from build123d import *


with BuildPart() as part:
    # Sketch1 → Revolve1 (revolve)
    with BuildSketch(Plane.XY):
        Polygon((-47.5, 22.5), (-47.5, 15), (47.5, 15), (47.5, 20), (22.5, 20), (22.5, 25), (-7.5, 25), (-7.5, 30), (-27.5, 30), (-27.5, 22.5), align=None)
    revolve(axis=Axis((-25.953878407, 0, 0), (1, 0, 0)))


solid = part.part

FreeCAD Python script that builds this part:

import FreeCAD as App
import Part
import Sketcher
from FreeCAD import Vector

doc = App.newDocument("Part")
body = doc.addObject("PartDesign::Body", "Body")

# Sketch on XY plane
sketch1 = body.newObject("Sketcher::SketchObject", "Sketch")
sketch1.AttachmentSupport = (doc.getObject("XY_Plane"), [""])
sketch1.MapMode = "FlatFace"
sketch1.addGeometry(Part.LineSegment(Vector(-48, 22, 0), Vector(-48, 15, 0)), False)
sketch1.addGeometry(Part.LineSegment(Vector(-48, 15, 0), Vector(48, 15, 0)), False)
sketch1.addGeometry(Part.LineSegment(Vector(48, 15, 0), Vector(48, 20, 0)), False)
sketch1.addGeometry(Part.LineSegment(Vector(48, 20, 0), Vector(22, 20, 0)), False)
sketch1.addGeometry(Part.LineSegment(Vector(22, 20, 0), Vector(22, 25, 0)), False)
sketch1.addGeometry(Part.LineSegment(Vector(22, 25, 0), Vector(-8, 25, 0)), False)
sketch1.addGeometry(Part.LineSegment(Vector(-8, 25, 0), Vector(-8, 30, 0)), False)
sketch1.addGeometry(Part.LineSegment(Vector(-8, 30, 0), Vector(-28, 30, 0)), False)
sketch1.addGeometry(Part.LineSegment(Vector(-28, 30, 0), Vector(-28, 22, 0)), False)
sketch1.addGeometry(Part.LineSegment(Vector(-28, 22, 0), Vector(-48, 22, 0)), False)
sketch1.addConstraint(Sketcher.Constraint("Coincident", 0, 2, 1, 1))
sketch1.addConstraint(Sketcher.Constraint("Coincident", 1, 2, 2, 1))
sketch1.addConstraint(Sketcher.Constraint("Coincident", 2, 2, 3, 1))
sketch1.addConstraint(Sketcher.Constraint("Coincident", 3, 2, 4, 1))
sketch1.addConstraint(Sketcher.Constraint("Coincident", 4, 2, 5, 1))
sketch1.addConstraint(Sketcher.Constraint("Coincident", 5, 2, 6, 1))
sketch1.addConstraint(Sketcher.Constraint("Coincident", 6, 2, 7, 1))
sketch1.addConstraint(Sketcher.Constraint("Coincident", 7, 2, 8, 1))
sketch1.addConstraint(Sketcher.Constraint("Coincident", 8, 2, 9, 1))
sketch1.addConstraint(Sketcher.Constraint("Coincident", 9, 2, 0, 1))
sketch1.addConstraint(Sketcher.Constraint("Vertical", 0))
sketch1.addConstraint(Sketcher.Constraint("Horizontal", 1))
sketch1.addConstraint(Sketcher.Constraint("Vertical", 2))
sketch1.addConstraint(Sketcher.Constraint("Horizontal", 3))
sketch1.addConstraint(Sketcher.Constraint("Vertical", 4))
sketch1.addConstraint(Sketcher.Constraint("Horizontal", 5))
sketch1.addConstraint(Sketcher.Constraint("Vertical", 6))
sketch1.addConstraint(Sketcher.Constraint("Horizontal", 7))
sketch1.addConstraint(Sketcher.Constraint("Vertical", 8))
sketch1.addConstraint(Sketcher.Constraint("Horizontal", 9))
sketch1.addConstraint(Sketcher.Constraint("Equal", 7, 9))
sketch1.addConstraint(Sketcher.Constraint("Equal", 2, 4))
sketch1.addConstraint(Sketcher.Constraint("Equal", 4, 6))
sketch1.addConstraint(Sketcher.Constraint("Equal", 0, 8))
sketch1.addConstraint(Sketcher.Constraint("DistanceX", 1, 1, 1, 2, 95.0))
sketch1.addConstraint(Sketcher.Constraint("DistanceX", 3, 2, 3, 1, 25.0))
sketch1.addConstraint(Sketcher.Constraint("DistanceX", 5, 2, 5, 1, 30.0))
sketch1.addConstraint(Sketcher.Constraint("DistanceY", 2, 1, 2, 2, 5.0))
sketch1.addConstraint(Sketcher.Constraint("DistanceY", -1, 1, 0, 2, 15.0))
sketch1.addConstraint(Sketcher.Constraint("DistanceX", 0, 2, -1, 1, 47.5))
revolution = body.newObject("PartDesign::Revolution", "Revolution")
revolution.Profile = sketch1
revolution.ReferenceAxis = (sketch1, ["H_Axis"])
revolution.Angle = 360

doc.recompute()
